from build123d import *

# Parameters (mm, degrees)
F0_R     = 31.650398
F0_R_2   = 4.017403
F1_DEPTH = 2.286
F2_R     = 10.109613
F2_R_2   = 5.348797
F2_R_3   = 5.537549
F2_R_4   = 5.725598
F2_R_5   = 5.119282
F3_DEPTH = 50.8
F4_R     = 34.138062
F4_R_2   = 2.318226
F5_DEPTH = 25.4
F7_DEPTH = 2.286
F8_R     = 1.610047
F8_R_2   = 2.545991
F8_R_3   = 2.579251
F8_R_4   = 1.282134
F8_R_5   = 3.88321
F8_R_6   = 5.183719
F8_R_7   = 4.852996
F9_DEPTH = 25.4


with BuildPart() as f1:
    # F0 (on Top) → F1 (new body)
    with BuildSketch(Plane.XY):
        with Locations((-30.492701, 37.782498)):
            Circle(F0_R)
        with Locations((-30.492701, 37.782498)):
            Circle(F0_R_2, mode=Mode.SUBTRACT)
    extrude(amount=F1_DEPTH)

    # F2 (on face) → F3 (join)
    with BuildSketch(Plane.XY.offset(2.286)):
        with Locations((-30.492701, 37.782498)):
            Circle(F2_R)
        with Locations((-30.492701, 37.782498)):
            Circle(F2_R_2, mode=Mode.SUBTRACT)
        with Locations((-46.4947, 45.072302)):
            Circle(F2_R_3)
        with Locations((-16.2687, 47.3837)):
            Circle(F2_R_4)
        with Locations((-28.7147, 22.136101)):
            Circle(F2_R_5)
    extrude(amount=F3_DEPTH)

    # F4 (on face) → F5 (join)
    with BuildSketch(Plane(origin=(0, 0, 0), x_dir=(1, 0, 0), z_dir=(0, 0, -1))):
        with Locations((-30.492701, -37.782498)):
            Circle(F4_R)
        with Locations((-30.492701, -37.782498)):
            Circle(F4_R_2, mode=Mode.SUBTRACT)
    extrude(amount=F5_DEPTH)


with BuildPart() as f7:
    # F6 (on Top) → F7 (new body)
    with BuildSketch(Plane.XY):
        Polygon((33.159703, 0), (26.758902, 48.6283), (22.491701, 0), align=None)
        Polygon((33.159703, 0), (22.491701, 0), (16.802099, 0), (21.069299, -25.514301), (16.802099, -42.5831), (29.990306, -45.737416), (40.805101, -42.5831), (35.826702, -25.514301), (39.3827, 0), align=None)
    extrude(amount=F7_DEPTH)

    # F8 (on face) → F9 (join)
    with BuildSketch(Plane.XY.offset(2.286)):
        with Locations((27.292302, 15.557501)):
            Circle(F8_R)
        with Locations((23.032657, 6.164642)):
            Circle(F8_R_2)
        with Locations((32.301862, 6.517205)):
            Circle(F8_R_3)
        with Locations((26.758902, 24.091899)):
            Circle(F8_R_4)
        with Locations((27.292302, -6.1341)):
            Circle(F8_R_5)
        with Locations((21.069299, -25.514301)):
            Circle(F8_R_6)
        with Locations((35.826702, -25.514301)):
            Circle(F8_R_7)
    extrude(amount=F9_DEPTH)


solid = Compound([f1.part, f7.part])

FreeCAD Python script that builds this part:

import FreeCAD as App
import Part
import Sketcher
from FreeCAD import Vector
Q = App.Units.Quantity


def add_polygon(sketch, points):
    """Adds a closed chain of lines whose ends are joined by coincident constraints."""
    first, n = sketch.GeometryCount, len(points)
    for a, b in zip(points, points[1:] + points[:1]):
        sketch.addGeometry(Part.LineSegment(App.Vector(*a, 0), App.Vector(*b, 0)), False)
    for i in range(n):
        sketch.addConstraint(Sketcher.Constraint("Coincident", first + i, 2, first + (i + 1) % n, 1))

doc = App.newDocument("Part")
body = doc.addObject("PartDesign::Body", "Body")

sketch1 = doc.addObject("Sketcher::SketchObject", "Sketch")
body.addObject(sketch1)
sketch1.AttachmentSupport = (doc.XY_Plane, [""])
sketch1.MapMode = "FlatFace"
sketch1.addGeometry(Part.Circle(Vector(-30.492701, 37.782498, 0), Vector(0, 0, 1), 31.650398), False)
sketch1.addGeometry(Part.Circle(Vector(-30.492701, 37.782498, 0), Vector(0, 0, 1), 4.017403), False)
sketch1.addConstraint(Sketcher.Constraint("Coincident", 1, 3, 0, 3))
sketch1.addConstraint(Sketcher.Constraint("Diameter", 0, Q("63.300796 mm")))
sketch1.addConstraint(Sketcher.Constraint("Diameter", 1, Q("8.034806 mm")))
sketch1.addConstraint(Sketcher.Constraint("DistanceX", 0, 3, -1, 1, Q("1.2005 in")))
sketch1.addConstraint(Sketcher.Constraint("DistanceY", -1, 1, 0, 3, Q("1.4874999 in")))
pad1 = doc.addObject("PartDesign::Pad", "Pad")
body.addObject(pad1)
pad1.Profile = sketch1
pad1.Length = Q("0.09 in")

sketch2 = doc.addObject("Sketcher::SketchObject", "Sketch001")
body.addObject(sketch2)
sketch2.AttachmentSupport = (doc.XY_Plane, [""])
sketch2.MapMode = "FlatFace"
sketch2.AttachmentOffset = App.Placement(Vector(0, 0, 0.09 * 25.4), App.Rotation())
sketch2.addGeometry(Part.Circle(Vector(-30.492701, 37.782498, 0), Vector(0, 0, 1), 10.109613), False)
sketch2.addGeometry(Part.Circle(Vector(-30.492701, 37.782498, 0), Vector(0, 0, 1), 5.348797), False)
sketch2.addGeometry(Part.Circle(Vector(-46.4947, 45.072302, 0), Vector(0, 0, 1), 5.537549), False)
sketch2.addGeometry(Part.Circle(Vector(-16.2687, 47.3837, 0), Vector(0, 0, 1), 5.725598), False)
sketch2.addGeometry(Part.Circle(Vector(-28.7147, 22.136101, 0), Vector(0, 0, 1), 5.119282), False)
sketch2.addConstraint(Sketcher.Constraint("Coincident", 1, 3, 0, 3))
sketch2.addConstraint(Sketcher.Constraint("DistanceX", 2, 3, 4, 3, Q("0.7 in")))
sketch2.addConstraint(Sketcher.Constraint("DistanceX", 2, 3, 0, 3, Q("0.63 in")))
sketch2.addConstraint(Sketcher.Constraint("DistanceX", 0, 3, 3, 3, Q("0.56 in")))
sketch2.addConstraint(Sketcher.Constraint("DistanceY", 0, 3, 2, 3, Q("0.2870002 in")))
sketch2.addConstraint(Sketcher.Constraint("DistanceY", 0, 3, 3, 3, Q("0.3780001 in")))
sketch2.addConstraint(Sketcher.Constraint("DistanceY", 4, 3, 0, 3, Q("0.6159999 in")))
sketch2.addConstraint(Sketcher.Constraint("Diameter", 0, Q("20.219226 mm")))
sketch2.addConstraint(Sketcher.Constraint("Diameter", 1, Q("10.697594 mm")))
sketch2.addConstraint(Sketcher.Constraint("Diameter", 2, Q("11.075098 mm")))
sketch2.addConstraint(Sketcher.Constraint("Diameter", 3, Q("11.451196 mm")))
sketch2.addConstraint(Sketcher.Constraint("Diameter", 4, Q("10.238564 mm")))
sketch2.addConstraint(Sketcher.Constraint("DistanceX", 0, 3, -1, 1, Q("1.2005 in")))
sketch2.addConstraint(Sketcher.Constraint("DistanceY", -1, 1, 0, 3, Q("1.4874999 in")))
pad2 = doc.addObject("PartDesign::Pad", "Pad001")
body.addObject(pad2)
pad2.Profile = sketch2
pad2.Length = Q("2 in")

sketch3 = doc.addObject("Sketcher::SketchObject", "Sketch002")
body.addObject(sketch3)
sketch3.AttachmentSupport = (doc.XY_Plane, [""])
sketch3.MapMode = "FlatFace"
sketch3.addGeometry(Part.Circle(Vector(-30.492701, 37.782498, 0), Vector(0, 0, 1), 34.138062), False)
sketch3.addGeometry(Part.Circle(Vector(-30.492701, 37.782498, 0), Vector(0, 0, 1), 2.318226), False)
sketch3.addConstraint(Sketcher.Constraint("Coincident", 1, 3, 0, 3))
sketch3.addConstraint(Sketcher.Constraint("Diameter", 0, Q("68.276124 mm")))
sketch3.addConstraint(Sketcher.Constraint("Diameter", 1, Q("4.636452 mm")))
sketch3.addConstraint(Sketcher.Constraint("DistanceX", 0, 3, -1, 1, Q("1.2005 in")))
sketch3.addConstraint(Sketcher.Constraint("DistanceY", -1, 1, 0, 3, Q("1.4874999 in")))
pad3 = doc.addObject("PartDesign::Pad", "Pad002")
body.addObject(pad3)
pad3.Profile = sketch3
pad3.Length = Q("1 in")
pad3.Reversed = True
body2 = doc.addObject("PartDesign::Body", "Body001")

sketch4 = doc.addObject("Sketcher::SketchObject", "Sketch003")
body2.addObject(sketch4)
sketch4.AttachmentSupport = (doc.getObject("XY_Plane001"), [""])
sketch4.MapMode = "FlatFace"
add_polygon(sketch4, [(33.159703, 0), (26.758902, 48.6283), (22.491701, 0), (16.802099, 0), (21.069299, -25.514301), (16.802099, -42.5831), (29.990306, -45.737416), (40.805101, -42.5831), (35.826702, -25.514301), (39.3827, 0)])
sketch4.addConstraint(Sketcher.Constraint("Horizontal", 2))
sketch4.addConstraint(Sketcher.Constraint("Horizontal", 9))
sketch4.addConstraint(Sketcher.Constraint("PointOnObject", 1, 2, -1))
sketch4.addConstraint(Sketcher.Constraint("PointOnObject", 8, 2, -1))
sketch4.addConstraint(Sketcher.Constraint("Perpendicular", 6, 7))
sketch4.addConstraint(Sketcher.Constraint("Horizontal", 4, 2, 6, 2))
sketch4.addConstraint(Sketcher.Constraint("Horizontal", 3, 2, 7, 2))
sketch4.addConstraint(Sketcher.Constraint("Vertical", 2, 2, 4, 2))
sketch4.addConstraint(Sketcher.Constraint("Distance", 7, Q("0.7 in")))
sketch4.addConstraint(Sketcher.Constraint("DistanceX", 2, 2, 2, 1, Q("0.2240001 in")))
sketch4.addConstraint(Sketcher.Constraint("DistanceX", 9, 2, 9, 1, Q("0.2449999 in")))
sketch4.addConstraint(Sketcher.Constraint("DistanceX", 7, 2, 8, 2, Q("0.1399999 in")))
sketch4.addConstraint(Sketcher.Constraint("DistanceX", 1, 2, 9, 2, Q("0.4200001 in")))
sketch4.addConstraint(Sketcher.Constraint("DistanceX", 1, 2, 0, 2, Q("0.168 in")))
sketch4.addConstraint(Sketcher.Constraint("DistanceX", 3, 2, 1, 2, Q("0.0560001 in")))
sketch4.addConstraint(Sketcher.Constraint("DistanceY", 3, 2, 0, 2, Q("2.919 in")))
sketch4.addConstraint(Sketcher.Constraint("DistanceY", 4, 2, 3, 2, Q("0.672 in")))
sketch4.addConstraint(Sketcher.Constraint("DistanceX", -1, 1, 0, 2, Q("1.0535001 in")))
sketch4.addConstraint(Sketcher.Constraint("DistanceY", -1, 1, 0, 2, Q("1.9145 in")))
sketch4.addConstraint(Sketcher.Constraint("Distance", 5, Q("13.560181 mm")))
pad4 = doc.addObject("PartDesign::Pad", "Pad003")
body2.addObject(pad4)
pad4.Profile = sketch4
pad4.Length = Q("0.09 in")

sketch5 = doc.addObject("Sketcher::SketchObject", "Sketch004")
body2.addObject(sketch5)
sketch5.AttachmentSupport = (doc.getObject("XY_Plane001"), [""])
sketch5.MapMode = "FlatFace"
sketch5.AttachmentOffset = App.Placement(Vector(0, 0, 0.09 * 25.4), App.Rotation())
sketch5.addGeometry(Part.Circle(Vector(27.292302, 15.557501, 0), Vector(0, 0, 1), 1.610047), False)
sketch5.addGeometry(Part.Circle(Vector(23.032657, 6.164642, 0), Vector(0, 0, 1), 2.545991), False)
sketch5.addGeometry(Part.Circle(Vector(32.301862, 6.517205, 0), Vector(0, 0, 1), 2.579251), False)
sketch5.addGeometry(Part.Circle(Vector(26.758902, 24.091899, 0), Vector(0, 0, 1), 1.282134), False)
sketch5.addGeometry(Part.Circle(Vector(27.292302, -6.1341, 0), Vector(0, 0, 1), 3.88321), False)
sketch5.addGeometry(Part.Circle(Vector(21.069299, -25.514301, 0), Vector(0, 0, 1), 5.183719), False)
sketch5.addGeometry(Part.Circle(Vector(35.826702, -25.514301, 0), Vector(0, 0, 1), 4.852996), False)
sketch5.addConstraint(Sketcher.Constraint("Horizontal", 5, 3, 6, 3))
sketch5.addConstraint(Sketcher.Constraint("Vertical", 0, 3, 4, 3))
sketch5.addConstraint(Sketcher.Constraint("DistanceY", 4, 3, 3, 3, Q("1.19 in")))
sketch5.addConstraint(Sketcher.Constraint("Diameter", 1, Q("5.091982 mm")))
sketch5.addConstraint(Sketcher.Constraint("Diameter", 3, Q("2.564268 mm")))
sketch5.addConstraint(Sketcher.Constraint("Diameter", 4, Q("7.76642 mm")))
sketch5.addConstraint(Sketcher.Constraint("DistanceX", 3, 3, 0, 3, Q("0.021 in")))
sketch5.addConstraint(Sketcher.Constraint("DistanceY", 0, 3, 3, 3, Q("0.3359999 in")))
sketch5.addConstraint(Sketcher.Constraint("DistanceX", 5, 3, 4, 3, Q("0.2450001 in")))
sketch5.addConstraint(Sketcher.Constraint("DistanceY", 5, 3, 4, 3, Q("0.763 in")))
sketch5.addConstraint(Sketcher.Constraint("DistanceX", 5, 3, 6, 3, Q("0.5810001 in")))
sketch5.addConstraint(Sketcher.Constraint("Diameter", 0, Q("3.220094 mm")))
sketch5.addConstraint(Sketcher.Constraint("Diameter", 2, Q("5.158502 mm")))
sketch5.addConstraint(Sketcher.Constraint("Diameter", 5, Q("10.367438 mm")))
sketch5.addConstraint(Sketcher.Constraint("Diameter", 6, Q("9.705992 mm")))
sketch5.addConstraint(Sketcher.Constraint("DistanceX", -1, 1, 0, 3, Q("1.0745001 in")))
sketch5.addConstraint(Sketcher.Constraint("DistanceY", -1, 1, 0, 3, Q("0.6125 in")))
sketch5.addConstraint(Sketcher.Constraint("DistanceY", -1, 1, 1, 3, Q("6.164642 mm")))
sketch5.addConstraint(Sketcher.Constraint("DistanceX", 0, 3, 2, 3, Q("5.00956 mm")))
sketch5.addConstraint(Sketcher.Constraint("DistanceX", -1, 1, 1, 3, Q("23.032657 mm")))
sketch5.addConstraint(Sketcher.Constraint("DistanceY", -1, 1, 2, 3, Q("6.517205 mm")))
pad5 = doc.addObject("PartDesign::Pad", "Pad004")
body2.addObject(pad5)
pad5.Profile = sketch5
pad5.Length = Q("1 in")

doc.recompute()
